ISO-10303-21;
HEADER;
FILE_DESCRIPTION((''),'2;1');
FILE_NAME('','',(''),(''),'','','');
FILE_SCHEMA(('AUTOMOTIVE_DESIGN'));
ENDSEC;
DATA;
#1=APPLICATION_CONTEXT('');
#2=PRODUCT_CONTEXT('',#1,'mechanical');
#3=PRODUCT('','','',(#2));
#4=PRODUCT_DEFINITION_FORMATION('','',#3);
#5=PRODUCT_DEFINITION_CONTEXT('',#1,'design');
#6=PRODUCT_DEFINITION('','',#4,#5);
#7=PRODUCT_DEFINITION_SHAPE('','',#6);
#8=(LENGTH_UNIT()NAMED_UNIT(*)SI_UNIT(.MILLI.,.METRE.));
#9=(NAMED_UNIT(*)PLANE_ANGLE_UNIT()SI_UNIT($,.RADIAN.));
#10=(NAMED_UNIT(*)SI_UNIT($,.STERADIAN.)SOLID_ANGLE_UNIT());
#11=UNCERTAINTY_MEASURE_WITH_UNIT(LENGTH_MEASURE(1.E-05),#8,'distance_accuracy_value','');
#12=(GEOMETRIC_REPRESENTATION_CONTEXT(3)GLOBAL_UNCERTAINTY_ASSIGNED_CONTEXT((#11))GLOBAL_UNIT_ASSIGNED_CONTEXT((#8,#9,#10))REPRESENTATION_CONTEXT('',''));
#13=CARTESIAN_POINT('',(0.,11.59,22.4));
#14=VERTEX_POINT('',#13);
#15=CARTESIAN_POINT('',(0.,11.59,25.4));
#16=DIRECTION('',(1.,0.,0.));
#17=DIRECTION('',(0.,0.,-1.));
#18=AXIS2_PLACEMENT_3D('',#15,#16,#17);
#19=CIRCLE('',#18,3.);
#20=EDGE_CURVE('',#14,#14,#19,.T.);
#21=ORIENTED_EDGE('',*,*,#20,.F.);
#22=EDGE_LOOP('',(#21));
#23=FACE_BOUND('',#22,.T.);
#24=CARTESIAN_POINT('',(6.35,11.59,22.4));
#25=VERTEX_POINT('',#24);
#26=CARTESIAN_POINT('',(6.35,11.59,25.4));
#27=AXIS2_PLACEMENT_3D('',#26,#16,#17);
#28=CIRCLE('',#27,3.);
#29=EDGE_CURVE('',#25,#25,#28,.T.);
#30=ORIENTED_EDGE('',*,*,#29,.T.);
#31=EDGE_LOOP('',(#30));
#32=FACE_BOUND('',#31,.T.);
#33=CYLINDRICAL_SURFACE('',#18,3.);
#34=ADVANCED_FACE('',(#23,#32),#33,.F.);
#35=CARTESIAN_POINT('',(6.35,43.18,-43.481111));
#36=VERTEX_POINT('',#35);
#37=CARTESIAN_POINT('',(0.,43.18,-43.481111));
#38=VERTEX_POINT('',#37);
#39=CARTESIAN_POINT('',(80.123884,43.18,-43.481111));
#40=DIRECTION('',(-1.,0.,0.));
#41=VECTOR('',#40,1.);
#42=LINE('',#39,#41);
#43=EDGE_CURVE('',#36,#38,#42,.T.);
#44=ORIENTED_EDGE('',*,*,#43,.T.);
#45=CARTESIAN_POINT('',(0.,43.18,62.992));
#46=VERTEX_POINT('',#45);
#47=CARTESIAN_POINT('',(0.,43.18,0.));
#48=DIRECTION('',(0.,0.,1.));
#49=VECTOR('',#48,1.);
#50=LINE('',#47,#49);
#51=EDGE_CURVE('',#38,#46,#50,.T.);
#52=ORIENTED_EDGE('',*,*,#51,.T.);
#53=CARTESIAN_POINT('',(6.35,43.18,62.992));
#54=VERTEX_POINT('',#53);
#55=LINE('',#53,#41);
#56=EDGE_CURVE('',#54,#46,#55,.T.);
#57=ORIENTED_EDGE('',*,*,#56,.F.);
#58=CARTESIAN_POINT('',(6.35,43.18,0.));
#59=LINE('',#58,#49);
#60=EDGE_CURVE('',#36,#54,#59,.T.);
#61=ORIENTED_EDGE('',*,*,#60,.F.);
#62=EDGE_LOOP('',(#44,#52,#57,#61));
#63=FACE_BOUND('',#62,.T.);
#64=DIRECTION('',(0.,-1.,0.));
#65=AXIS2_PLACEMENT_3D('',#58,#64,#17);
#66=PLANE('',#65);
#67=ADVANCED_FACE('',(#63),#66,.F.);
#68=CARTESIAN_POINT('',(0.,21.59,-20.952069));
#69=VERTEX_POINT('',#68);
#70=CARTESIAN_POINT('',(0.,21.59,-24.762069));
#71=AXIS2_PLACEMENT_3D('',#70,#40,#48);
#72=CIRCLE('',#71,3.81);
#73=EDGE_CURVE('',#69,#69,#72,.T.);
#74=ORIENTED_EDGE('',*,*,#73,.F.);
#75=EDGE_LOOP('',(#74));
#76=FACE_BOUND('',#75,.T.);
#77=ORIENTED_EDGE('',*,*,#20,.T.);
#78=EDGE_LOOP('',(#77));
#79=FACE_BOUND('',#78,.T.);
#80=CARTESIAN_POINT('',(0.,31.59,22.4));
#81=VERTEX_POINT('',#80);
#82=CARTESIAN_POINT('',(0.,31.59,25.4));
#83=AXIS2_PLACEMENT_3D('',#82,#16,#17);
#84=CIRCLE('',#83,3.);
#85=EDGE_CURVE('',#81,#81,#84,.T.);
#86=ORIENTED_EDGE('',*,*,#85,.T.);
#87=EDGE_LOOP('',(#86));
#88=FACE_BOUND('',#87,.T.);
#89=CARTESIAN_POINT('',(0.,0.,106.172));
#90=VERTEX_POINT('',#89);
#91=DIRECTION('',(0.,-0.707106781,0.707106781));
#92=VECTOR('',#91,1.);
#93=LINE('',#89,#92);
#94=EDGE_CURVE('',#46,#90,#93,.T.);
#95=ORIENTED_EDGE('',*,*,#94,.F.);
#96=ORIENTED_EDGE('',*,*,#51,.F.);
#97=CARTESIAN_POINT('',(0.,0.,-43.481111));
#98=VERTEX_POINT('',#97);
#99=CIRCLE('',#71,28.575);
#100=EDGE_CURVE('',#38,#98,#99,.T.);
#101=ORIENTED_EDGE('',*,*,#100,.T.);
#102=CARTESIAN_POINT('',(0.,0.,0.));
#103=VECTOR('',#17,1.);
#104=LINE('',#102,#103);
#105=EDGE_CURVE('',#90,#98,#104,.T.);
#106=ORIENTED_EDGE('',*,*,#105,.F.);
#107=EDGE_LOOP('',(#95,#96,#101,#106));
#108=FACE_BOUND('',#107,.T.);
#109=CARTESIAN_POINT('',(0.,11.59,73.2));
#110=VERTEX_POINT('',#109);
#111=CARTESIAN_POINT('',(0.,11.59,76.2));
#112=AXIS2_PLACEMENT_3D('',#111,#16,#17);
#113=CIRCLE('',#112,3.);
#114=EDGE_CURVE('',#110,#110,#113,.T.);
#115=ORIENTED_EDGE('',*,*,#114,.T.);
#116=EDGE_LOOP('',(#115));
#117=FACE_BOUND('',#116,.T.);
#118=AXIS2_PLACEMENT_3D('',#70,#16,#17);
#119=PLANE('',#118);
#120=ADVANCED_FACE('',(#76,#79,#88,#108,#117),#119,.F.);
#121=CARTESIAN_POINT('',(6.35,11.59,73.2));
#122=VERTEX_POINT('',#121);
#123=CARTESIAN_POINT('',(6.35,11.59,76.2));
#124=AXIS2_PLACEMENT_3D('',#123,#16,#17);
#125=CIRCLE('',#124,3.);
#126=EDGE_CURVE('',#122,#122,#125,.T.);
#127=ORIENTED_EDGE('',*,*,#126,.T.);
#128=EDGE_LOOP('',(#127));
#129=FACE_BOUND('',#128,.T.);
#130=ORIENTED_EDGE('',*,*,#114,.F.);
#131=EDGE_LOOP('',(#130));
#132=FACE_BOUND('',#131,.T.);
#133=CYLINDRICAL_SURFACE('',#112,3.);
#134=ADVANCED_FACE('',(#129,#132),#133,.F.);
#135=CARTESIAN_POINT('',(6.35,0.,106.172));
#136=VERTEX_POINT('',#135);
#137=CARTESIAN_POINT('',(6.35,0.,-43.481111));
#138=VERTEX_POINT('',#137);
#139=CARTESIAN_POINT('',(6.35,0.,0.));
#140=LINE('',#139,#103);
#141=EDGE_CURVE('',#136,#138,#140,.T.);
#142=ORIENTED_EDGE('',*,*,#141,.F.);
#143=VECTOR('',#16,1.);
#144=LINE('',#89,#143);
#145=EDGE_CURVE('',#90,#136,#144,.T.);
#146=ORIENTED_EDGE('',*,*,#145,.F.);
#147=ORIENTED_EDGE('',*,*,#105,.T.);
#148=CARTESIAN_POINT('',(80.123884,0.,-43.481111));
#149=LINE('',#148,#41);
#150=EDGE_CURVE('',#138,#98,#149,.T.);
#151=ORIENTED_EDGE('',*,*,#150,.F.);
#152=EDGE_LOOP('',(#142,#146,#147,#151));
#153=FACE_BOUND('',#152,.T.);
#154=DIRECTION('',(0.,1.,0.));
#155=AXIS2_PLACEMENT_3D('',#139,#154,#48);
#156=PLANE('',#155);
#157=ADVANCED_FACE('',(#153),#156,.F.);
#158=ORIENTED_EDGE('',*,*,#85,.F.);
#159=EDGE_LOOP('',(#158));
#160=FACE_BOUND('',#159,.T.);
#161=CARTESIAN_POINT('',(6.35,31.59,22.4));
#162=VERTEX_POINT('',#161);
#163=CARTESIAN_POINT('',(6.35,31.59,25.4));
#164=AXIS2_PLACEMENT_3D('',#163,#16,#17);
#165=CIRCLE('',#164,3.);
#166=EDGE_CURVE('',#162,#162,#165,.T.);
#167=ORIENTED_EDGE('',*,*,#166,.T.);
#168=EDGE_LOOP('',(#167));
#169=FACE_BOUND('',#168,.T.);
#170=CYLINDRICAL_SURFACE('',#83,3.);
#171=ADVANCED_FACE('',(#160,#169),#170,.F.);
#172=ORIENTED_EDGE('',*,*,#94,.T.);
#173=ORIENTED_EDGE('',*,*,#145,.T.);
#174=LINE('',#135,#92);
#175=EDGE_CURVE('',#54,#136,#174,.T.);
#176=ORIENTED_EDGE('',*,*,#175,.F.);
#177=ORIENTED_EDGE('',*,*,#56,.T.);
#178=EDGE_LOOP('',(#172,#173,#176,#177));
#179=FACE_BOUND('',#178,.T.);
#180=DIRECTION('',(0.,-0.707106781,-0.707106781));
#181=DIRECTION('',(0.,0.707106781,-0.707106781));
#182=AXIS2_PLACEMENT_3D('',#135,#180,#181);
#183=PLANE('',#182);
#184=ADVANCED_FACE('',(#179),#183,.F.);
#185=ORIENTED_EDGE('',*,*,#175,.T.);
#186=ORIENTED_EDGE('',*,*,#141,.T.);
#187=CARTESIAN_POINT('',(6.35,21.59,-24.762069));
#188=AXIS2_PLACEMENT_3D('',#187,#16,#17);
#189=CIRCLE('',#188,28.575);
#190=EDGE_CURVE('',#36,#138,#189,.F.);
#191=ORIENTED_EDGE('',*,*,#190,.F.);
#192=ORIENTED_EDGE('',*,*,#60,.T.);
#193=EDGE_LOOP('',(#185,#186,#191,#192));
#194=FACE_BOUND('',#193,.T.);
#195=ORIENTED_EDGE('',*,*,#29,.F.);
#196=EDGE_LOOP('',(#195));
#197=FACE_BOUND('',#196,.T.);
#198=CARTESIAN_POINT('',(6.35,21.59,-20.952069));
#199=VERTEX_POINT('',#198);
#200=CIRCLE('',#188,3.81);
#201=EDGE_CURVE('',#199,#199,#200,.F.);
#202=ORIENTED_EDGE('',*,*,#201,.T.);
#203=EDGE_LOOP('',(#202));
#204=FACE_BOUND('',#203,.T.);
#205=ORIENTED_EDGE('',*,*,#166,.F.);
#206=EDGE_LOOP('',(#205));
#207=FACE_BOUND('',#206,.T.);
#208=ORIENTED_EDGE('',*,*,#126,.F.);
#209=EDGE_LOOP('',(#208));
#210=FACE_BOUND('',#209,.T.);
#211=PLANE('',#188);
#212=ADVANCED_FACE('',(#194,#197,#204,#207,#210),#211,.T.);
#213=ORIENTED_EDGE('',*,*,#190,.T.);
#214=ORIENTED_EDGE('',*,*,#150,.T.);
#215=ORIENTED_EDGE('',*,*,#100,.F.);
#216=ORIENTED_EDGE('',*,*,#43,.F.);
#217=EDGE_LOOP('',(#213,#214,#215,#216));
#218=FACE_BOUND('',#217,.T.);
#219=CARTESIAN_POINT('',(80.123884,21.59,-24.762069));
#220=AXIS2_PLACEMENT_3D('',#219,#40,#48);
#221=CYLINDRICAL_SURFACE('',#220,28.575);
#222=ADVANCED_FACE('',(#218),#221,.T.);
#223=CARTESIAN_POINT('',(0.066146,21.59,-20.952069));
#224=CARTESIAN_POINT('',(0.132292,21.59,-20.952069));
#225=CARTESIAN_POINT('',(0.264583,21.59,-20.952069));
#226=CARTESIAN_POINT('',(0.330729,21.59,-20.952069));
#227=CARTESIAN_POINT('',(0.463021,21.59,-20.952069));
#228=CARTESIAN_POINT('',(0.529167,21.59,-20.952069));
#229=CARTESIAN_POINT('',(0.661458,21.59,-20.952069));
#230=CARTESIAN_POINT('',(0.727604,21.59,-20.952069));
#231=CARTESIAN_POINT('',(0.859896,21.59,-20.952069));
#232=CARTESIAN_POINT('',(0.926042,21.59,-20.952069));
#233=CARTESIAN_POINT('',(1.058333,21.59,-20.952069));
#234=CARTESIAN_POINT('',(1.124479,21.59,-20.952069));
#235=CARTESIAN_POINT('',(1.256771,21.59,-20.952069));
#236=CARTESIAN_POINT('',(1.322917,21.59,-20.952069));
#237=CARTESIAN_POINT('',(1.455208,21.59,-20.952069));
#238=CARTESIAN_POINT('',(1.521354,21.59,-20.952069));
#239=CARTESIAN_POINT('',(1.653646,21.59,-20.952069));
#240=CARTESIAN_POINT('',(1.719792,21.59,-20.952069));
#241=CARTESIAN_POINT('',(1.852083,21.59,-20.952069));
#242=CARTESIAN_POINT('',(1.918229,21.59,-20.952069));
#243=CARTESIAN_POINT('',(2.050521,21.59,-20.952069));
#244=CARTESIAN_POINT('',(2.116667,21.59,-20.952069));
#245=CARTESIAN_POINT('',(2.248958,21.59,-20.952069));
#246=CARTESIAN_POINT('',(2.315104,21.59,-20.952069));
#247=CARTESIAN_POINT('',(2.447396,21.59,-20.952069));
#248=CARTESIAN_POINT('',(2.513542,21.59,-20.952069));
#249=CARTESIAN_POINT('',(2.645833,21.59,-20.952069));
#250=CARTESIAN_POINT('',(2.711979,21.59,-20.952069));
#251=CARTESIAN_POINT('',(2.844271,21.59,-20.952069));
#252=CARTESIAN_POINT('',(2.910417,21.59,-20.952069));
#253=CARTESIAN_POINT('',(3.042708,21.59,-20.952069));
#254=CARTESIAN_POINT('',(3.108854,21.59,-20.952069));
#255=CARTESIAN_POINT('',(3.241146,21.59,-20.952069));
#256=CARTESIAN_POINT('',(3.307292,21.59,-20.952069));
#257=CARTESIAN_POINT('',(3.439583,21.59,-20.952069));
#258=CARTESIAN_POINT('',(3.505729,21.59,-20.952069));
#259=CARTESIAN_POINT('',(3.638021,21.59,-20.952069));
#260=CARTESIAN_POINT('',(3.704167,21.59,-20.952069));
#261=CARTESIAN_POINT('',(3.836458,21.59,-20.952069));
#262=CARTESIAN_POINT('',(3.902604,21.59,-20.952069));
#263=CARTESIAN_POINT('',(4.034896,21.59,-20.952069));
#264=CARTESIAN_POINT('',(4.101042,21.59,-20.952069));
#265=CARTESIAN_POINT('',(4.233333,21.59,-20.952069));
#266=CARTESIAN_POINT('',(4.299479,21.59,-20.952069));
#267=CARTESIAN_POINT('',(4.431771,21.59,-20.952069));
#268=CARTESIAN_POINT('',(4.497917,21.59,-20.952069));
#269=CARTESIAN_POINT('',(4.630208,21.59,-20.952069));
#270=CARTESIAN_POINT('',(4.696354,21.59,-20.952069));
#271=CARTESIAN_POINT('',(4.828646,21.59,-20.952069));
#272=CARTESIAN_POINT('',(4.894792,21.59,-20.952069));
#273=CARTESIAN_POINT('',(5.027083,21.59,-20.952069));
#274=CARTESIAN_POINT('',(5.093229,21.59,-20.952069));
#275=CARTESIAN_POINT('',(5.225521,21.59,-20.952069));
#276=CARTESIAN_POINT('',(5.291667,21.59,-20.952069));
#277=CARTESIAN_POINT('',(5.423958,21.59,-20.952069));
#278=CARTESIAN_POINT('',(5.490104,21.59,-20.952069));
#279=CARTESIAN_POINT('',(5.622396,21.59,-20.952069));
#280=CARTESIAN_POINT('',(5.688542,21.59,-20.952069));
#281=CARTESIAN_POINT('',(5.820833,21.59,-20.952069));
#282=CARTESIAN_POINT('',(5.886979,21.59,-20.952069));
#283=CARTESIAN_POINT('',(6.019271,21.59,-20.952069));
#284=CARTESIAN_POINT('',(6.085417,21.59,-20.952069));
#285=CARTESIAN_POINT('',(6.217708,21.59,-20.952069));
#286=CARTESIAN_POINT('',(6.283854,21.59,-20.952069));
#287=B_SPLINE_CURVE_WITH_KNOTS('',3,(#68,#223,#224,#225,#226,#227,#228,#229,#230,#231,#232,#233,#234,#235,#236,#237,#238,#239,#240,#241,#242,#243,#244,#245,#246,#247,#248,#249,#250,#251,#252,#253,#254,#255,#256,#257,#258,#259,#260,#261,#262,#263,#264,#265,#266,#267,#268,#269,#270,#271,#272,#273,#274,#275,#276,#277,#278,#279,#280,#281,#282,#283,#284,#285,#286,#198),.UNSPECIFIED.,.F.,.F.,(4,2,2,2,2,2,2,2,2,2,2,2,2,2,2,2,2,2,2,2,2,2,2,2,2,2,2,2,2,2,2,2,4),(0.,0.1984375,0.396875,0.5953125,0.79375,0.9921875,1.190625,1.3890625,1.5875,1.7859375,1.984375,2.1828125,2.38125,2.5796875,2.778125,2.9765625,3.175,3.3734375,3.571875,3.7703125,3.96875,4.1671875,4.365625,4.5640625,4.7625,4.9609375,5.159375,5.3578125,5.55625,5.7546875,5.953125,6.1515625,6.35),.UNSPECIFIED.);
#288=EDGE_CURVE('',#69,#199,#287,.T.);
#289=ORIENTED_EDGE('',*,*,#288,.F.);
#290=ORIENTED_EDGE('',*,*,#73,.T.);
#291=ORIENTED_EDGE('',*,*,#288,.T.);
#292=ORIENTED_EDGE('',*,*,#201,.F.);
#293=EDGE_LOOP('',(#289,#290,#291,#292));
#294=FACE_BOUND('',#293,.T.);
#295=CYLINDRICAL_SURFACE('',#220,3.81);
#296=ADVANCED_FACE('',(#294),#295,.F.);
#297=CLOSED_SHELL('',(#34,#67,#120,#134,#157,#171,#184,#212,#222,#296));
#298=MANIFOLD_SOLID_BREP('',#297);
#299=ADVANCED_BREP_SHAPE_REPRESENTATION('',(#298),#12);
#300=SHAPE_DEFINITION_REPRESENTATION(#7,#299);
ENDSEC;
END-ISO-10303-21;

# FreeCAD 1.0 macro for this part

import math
import FreeCAD as App
import Part
import Sketcher
from FreeCAD import Vector
Q = App.Units.Quantity


def add_polygon(sketch, points):
    """Adds a closed chain of lines whose ends are joined by coincident constraints."""
    first, n = sketch.GeometryCount, len(points)
    for a, b in zip(points, points[1:] + points[:1]):
        sketch.addGeometry(Part.LineSegment(App.Vector(*a, 0), App.Vector(*b, 0)), False)
    for i in range(n):
        sketch.addConstraint(Sketcher.Constraint("Coincident", first + i, 2, first + (i + 1) % n, 1))

doc = App.newDocument("Part")
params = doc.addObject("Spreadsheet::Sheet", "Params")
for row, (alias, value) in enumerate([
    ("sketch1_radius", "1.23 in"),
    ("sketch1_width", "0.1 in"),
    ("sketch1_height", "4.18 in"),
    ("sketch1_height2", "2.48 in"),
    ("pad1_length", "0.25 in"),
    ("sketch2_height", "4 in"),
    ("sketch2_width", "0.7 in"),
    ("pad2_length", "0.25 in"),
    ("sketch3_height", "2.5 in"),
    ("pocket3_length", "0.25 in"),
    ("sketch6_diameter", "0.3 in"),
    ("sketch6_radius", "1.23 in"),
    ("sketch6_width", "0.1 in"),
    ("sketch6_radius2", "1.125 in"),
    ("pad3_length", "0.25 in"),
], start=1):
    params.set(f"A{row}", alias)
    params.set(f"B{row}", "=" + value)
    params.setAlias(f"B{row}", alias)

body = doc.addObject("PartDesign::Body", "Body")

sketch1 = doc.addObject("Sketcher::SketchObject", "Sketch")
body.addObject(sketch1)
sketch1.AttachmentSupport = (doc.YZ_Plane, [""])
sketch1.MapMode = "FlatFace"
sketch1.addGeometry(Part.LineSegment(Vector(43.2, 63, 0), Vector(0, 106.2, 0)), False)
sketch1.addGeometry(Part.LineSegment(Vector(0, 106.2, 0), Vector(0, 0, 0)), False)
sketch1.addGeometry(Part.LineSegment(Vector(0, 0, 0), Vector(2.5, 0, 0)), False)
sketch1.addGeometry(Part.ArcOfCircle(Part.Circle(Vector(21.6, -24.8, 0), Vector(0, 0, 1), 31.2), math.radians(52), math.radians(128)), False)
sketch1.addGeometry(Part.LineSegment(Vector(40.6, 0, 0), Vector(43.2, 0, 0)), False)
sketch1.addGeometry(Part.LineSegment(Vector(43.2, 0, 0), Vector(43.2, 63, 0)), False)
sketch1.addConstraint(Sketcher.Constraint("Coincident", 0, 2, 1, 1))
sketch1.addConstraint(Sketcher.Constraint("Coincident", 1, 2, 2, 1))
sketch1.addConstraint(Sketcher.Constraint("Coincident", 2, 2, 3, 2))
sketch1.addConstraint(Sketcher.Constraint("Coincident", 3, 1, 4, 1))
sketch1.addConstraint(Sketcher.Constraint("Coincident", 4, 2, 5, 1))
sketch1.addConstraint(Sketcher.Constraint("Coincident", 5, 2, 0, 1))
sketch1.addConstraint(Sketcher.Constraint("Vertical", 1))
sketch1.addConstraint(Sketcher.Constraint("Horizontal", 2))
sketch1.addConstraint(Sketcher.Constraint("Horizontal", 4))
sketch1.addConstraint(Sketcher.Constraint("Vertical", 5))
sketch1.addConstraint(Sketcher.Constraint("Coincident", 1, 2, -1, 1))
sketch1.addConstraint(Sketcher.Constraint("PointOnObject", 3, 1, -1))
sketch1.addConstraint(Sketcher.Constraint("Equal", 2, 4))
sketch1.addConstraint(Sketcher.Constraint("Radius", 3, Q("1.23 in")))
sketch1.addConstraint(Sketcher.Constraint("DistanceX", 2, 1, 2, 2, Q("0.1 in")))
sketch1.addConstraint(Sketcher.Constraint("Angle", 0, Q("135 deg")))
sketch1.addConstraint(Sketcher.Constraint("DistanceY", 1, 2, 1, 1, Q("4.18 in")))
sketch1.addConstraint(Sketcher.Constraint("DistanceY", 5, 1, 5, 2, Q("2.48 in")))
sketch1.setExpression("Constraints[13]", "Params.sketch1_radius")
sketch1.setExpression("Constraints[14]", "Params.sketch1_width")
sketch1.setExpression("Constraints[16]", "Params.sketch1_height")
sketch1.setExpression("Constraints[17]", "Params.sketch1_height2")
pad1 = doc.addObject("PartDesign::Pad", "Pad")
body.addObject(pad1)
pad1.Profile = sketch1
pad1.setExpression("Length", "Params.pad1_length")

sketch2 = doc.addObject("Sketcher::SketchObject", "Sketch001")
body.addObject(sketch2)
sketch2.AttachmentSupport = (doc.YZ_Plane, [""])
sketch2.MapMode = "FlatFace"
sketch2.AttachmentOffset = App.Placement(Vector(0, 0, 0.25 * 25.4), App.Rotation())
add_polygon(sketch2, [(0, 170), (0, 68), (18, 68), (10, 144)])
sketch2.addConstraint(Sketcher.Constraint("Vertical", 0))
sketch2.addConstraint(Sketcher.Constraint("Horizontal", 1))
sketch2.addConstraint(Sketcher.Constraint("PointOnObject", 0, 2, -2))
sketch2.addConstraint(Sketcher.Constraint("DistanceY", 0, 2, 0, 1, Q("4 in")))
sketch2.addConstraint(Sketcher.Constraint("DistanceX", 1, 1, 1, 2, Q("0.7 in")))
sketch2.addConstraint(Sketcher.Constraint("DistanceY", 1, 2, 2, 2, Q("3 in")))
sketch2.addConstraint(Sketcher.Constraint("DistanceX", -1, 1, 2, 2, Q("0.4 in")))
sketch2.addConstraint(Sketcher.Constraint("DistanceY", -1, 1, 0, 2, Q("2.68 in")))
sketch2.setExpression("Constraints[7]", "Params.sketch2_height")
sketch2.setExpression("Constraints[8]", "Params.sketch2_width")
pad2 = doc.addObject("PartDesign::Pad", "Pad001")
body.addObject(pad2)
pad2.Profile = sketch2
pad2.setExpression("Length", "Params.pad2_length")
pad2.Reversed = True

sketch3 = doc.addObject("Sketcher::SketchObject", "Sketch002")
body.addObject(sketch3)
sketch3.AttachmentSupport = (doc.YZ_Plane, [""])
sketch3.MapMode = "FlatFace"
sketch3.AttachmentOffset = App.Placement(Vector(0, 0, 0.25 * 25.4), App.Rotation())
add_polygon(sketch3, [(0, 106), (3, 163), (0, 170)])
sketch3.addConstraint(Sketcher.Constraint("Vertical", 2))
sketch3.addConstraint(Sketcher.Constraint("PointOnObject", 1, 2, -2))
sketch3.addConstraint(Sketcher.Constraint("DistanceY", 2, 2, 2, 1, Q("2.5 in")))
sketch3.addConstraint(Sketcher.Constraint("DistanceX", -1, 1, 0, 2, Q("0.11 in")))
sketch3.addConstraint(Sketcher.Constraint("DistanceY", -1, 1, 1, 2, Q("6.68 in")))
sketch3.addConstraint(Sketcher.Constraint("DistanceY", -1, 1, 0, 2, Q("6.405 in")))
sketch3.setExpression("Constraints[5]", "Params.sketch3_height")
pocket1 = doc.addObject("PartDesign::Pocket", "Pocket")
body.addObject(pocket1)
pocket1.Profile = sketch3
pocket1.Type = "ThroughAll"

sketch4 = doc.addObject("Sketcher::SketchObject", "Sketch003")
body.addObject(sketch4)
sketch4.AttachmentSupport = (doc.YZ_Plane, [""])
sketch4.MapMode = "FlatFace"
sketch4.AttachmentOffset = App.Placement(Vector(0, 0, 0.25 * 25.4), App.Rotation())
sketch4.addGeometry(Part.Circle(Vector(31.6, 25.4, 0), Vector(0, 0, 1), 3), False)
sketch4.addGeometry(Part.Circle(Vector(11.6, 25.4, 0), Vector(0, 0, 1), 3), False)
sketch4.addGeometry(Part.Circle(Vector(11.6, 76.2, 0), Vector(0, 0, 1), 3), False)
sketch4.addConstraint(Sketcher.Constraint("Equal", 0, 1))
sketch4.addConstraint(Sketcher.Constraint("Equal", 1, 2))
sketch4.addConstraint(Sketcher.Constraint("Horizontal", 0, 3, 1, 3))
sketch4.addConstraint(Sketcher.Constraint("Vertical", 1, 3, 2, 3))
sketch4.addConstraint(Sketcher.Constraint("DistanceY", -1, 1, 0, 3, Q("1 in")))
sketch4.addConstraint(Sketcher.Constraint("DistanceY", -1, 1, 2, 3, Q("3 in")))
sketch4.addConstraint(Sketcher.Constraint("Diameter", 0, 6.0))
sketch4.addConstraint(Sketcher.Constraint("DistanceX", -1, 1, 0, 3, 31.59))
sketch4.addConstraint(Sketcher.Constraint("DistanceX", -1, 1, 1, 3, 11.59))
pocket2 = doc.addObject("PartDesign::Pocket", "Pocket001")
body.addObject(pocket2)
pocket2.Profile = sketch4
pocket2.Type = "ThroughAll"

sketch5 = doc.addObject("Sketcher::SketchObject", "Sketch004")
body.addObject(sketch5)
sketch5.AttachmentSupport = (doc.YZ_Plane, [""])
sketch5.MapMode = "FlatFace"
add_polygon(sketch5, [(43, 63), (-2, 108), (-1, 165), (13, 157), (20, 95)])
sketch5.addConstraint(Sketcher.Constraint("Angle", 0, Q("135 deg")))
sketch5.addConstraint(Sketcher.Constraint("DistanceX", -1, 1, 4, 2, Q("1.7 in")))
sketch5.addConstraint(Sketcher.Constraint("DistanceY", -1, 1, 4, 2, Q("2.48 in")))
sketch5.addConstraint(Sketcher.Constraint("DistanceY", -1, 1, 2, 2, 157.2336))
sketch5.addConstraint(Sketcher.Constraint("Distance", 0, 64.089242))
sketch5.addConstraint(Sketcher.Constraint("Distance", 1, 57.022061))
sketch5.addConstraint(Sketcher.Constraint("Distance", 2, 16.34381))
sketch5.addConstraint(Sketcher.Constraint("DistanceX", -1, 1, 3, 2, 20.109839))
sketch5.addConstraint(Sketcher.Constraint("DistanceY", 0, 2, 1, 2, 57.008919))
sketch5.addConstraint(Sketcher.Constraint("Distance", 3, 62.370178))
pocket3 = doc.addObject("PartDesign::Pocket", "Pocket002")
body.addObject(pocket3)
pocket3.Profile = sketch5
pocket3.setExpression("Length", "Params.pocket3_length")
pocket3.Reversed = True

sketch6 = doc.addObject("Sketcher::SketchObject", "Sketch005")
body.addObject(sketch6)
sketch6.AttachmentSupport = (doc.YZ_Plane, [""])
sketch6.MapMode = "FlatFace"
sketch6.addGeometry(Part.LineSegment(Vector(43.2, 0, 0), Vector(43.2, -43.5, 0)), False)
sketch6.addGeometry(Part.ArcOfCircle(Part.Circle(Vector(21.6, -24.8, 0), Vector(0, 0, 1), 28.6), math.radians(-139), math.radians(-41)), False)
sketch6.addGeometry(Part.LineSegment(Vector(0, -43.5, 0), Vector(0, 0, 0)), False)
sketch6.addGeometry(Part.LineSegment(Vector(0, 0, 0), Vector(2.5, 0, 0)), False)
sketch6.addGeometry(Part.ArcOfCircle(Part.Circle(Vector(21.6, -24.8, 0), Vector(0, 0, 1), 31.2), math.radians(52), math.radians(128)), False)
sketch6.addGeometry(Part.LineSegment(Vector(40.6, 0, 0), Vector(43.2, 0, 0)), False)
sketch6.addGeometry(Part.Circle(Vector(21.6, -24.8, 0), Vector(0, 0, 1), 3.8), False)
sketch6.addConstraint(Sketcher.Constraint("Coincident", 0, 2, 1, 2))
sketch6.addConstraint(Sketcher.Constraint("Coincident", 1, 1, 2, 1))
sketch6.addConstraint(Sketcher.Constraint("Coincident", 2, 2, 3, 1))
sketch6.addConstraint(Sketcher.Constraint("Coincident", 3, 2, 4, 2))
sketch6.addConstraint(Sketcher.Constraint("Coincident", 4, 1, 5, 1))
sketch6.addConstraint(Sketcher.Constraint("Coincident", 5, 2, 0, 1))
sketch6.addConstraint(Sketcher.Constraint("Vertical", 0))
sketch6.addConstraint(Sketcher.Constraint("Vertical", 2))
sketch6.addConstraint(Sketcher.Constraint("Horizontal", 3))
sketch6.addConstraint(Sketcher.Constraint("Horizontal", 5))
sketch6.addConstraint(Sketcher.Constraint("Coincident", 2, 2, -1, 1))
sketch6.addConstraint(Sketcher.Constraint("Coincident", 4, 3, 1, 3))
sketch6.addConstraint(Sketcher.Constraint("Coincident", 6, 3, 1, 3))
sketch6.addConstraint(Sketcher.Constraint("PointOnObject", 4, 1, -1))
sketch6.addConstraint(Sketcher.Constraint("Horizontal", 0, 2, 1, 1))
sketch6.addConstraint(Sketcher.Constraint("Diameter", 6, Q("0.3 in")))
sketch6.addConstraint(Sketcher.Constraint("Radius", 4, Q("1.23 in")))
sketch6.addConstraint(Sketcher.Constraint("DistanceX", 3, 1, 3, 2, Q("0.1 in")))
sketch6.addConstraint(Sketcher.Constraint("Radius", 1, Q("1.125 in")))
sketch6.addConstraint(Sketcher.Constraint("DistanceX", -1, 1, 0, 2, Q("1.7 in")))
sketch6.setExpression("Constraints[15]", "Params.sketch6_diameter")
sketch6.setExpression("Constraints[16]", "Params.sketch6_radius")
sketch6.setExpression("Constraints[17]", "Params.sketch6_width")
sketch6.setExpression("Constraints[18]", "Params.sketch6_radius2")
pad3 = doc.addObject("PartDesign::Pad", "Pad002")
body.addObject(pad3)
pad3.Profile = sketch6
pad3.setExpression("Length", "Params.pad3_length")

doc.recompute()
